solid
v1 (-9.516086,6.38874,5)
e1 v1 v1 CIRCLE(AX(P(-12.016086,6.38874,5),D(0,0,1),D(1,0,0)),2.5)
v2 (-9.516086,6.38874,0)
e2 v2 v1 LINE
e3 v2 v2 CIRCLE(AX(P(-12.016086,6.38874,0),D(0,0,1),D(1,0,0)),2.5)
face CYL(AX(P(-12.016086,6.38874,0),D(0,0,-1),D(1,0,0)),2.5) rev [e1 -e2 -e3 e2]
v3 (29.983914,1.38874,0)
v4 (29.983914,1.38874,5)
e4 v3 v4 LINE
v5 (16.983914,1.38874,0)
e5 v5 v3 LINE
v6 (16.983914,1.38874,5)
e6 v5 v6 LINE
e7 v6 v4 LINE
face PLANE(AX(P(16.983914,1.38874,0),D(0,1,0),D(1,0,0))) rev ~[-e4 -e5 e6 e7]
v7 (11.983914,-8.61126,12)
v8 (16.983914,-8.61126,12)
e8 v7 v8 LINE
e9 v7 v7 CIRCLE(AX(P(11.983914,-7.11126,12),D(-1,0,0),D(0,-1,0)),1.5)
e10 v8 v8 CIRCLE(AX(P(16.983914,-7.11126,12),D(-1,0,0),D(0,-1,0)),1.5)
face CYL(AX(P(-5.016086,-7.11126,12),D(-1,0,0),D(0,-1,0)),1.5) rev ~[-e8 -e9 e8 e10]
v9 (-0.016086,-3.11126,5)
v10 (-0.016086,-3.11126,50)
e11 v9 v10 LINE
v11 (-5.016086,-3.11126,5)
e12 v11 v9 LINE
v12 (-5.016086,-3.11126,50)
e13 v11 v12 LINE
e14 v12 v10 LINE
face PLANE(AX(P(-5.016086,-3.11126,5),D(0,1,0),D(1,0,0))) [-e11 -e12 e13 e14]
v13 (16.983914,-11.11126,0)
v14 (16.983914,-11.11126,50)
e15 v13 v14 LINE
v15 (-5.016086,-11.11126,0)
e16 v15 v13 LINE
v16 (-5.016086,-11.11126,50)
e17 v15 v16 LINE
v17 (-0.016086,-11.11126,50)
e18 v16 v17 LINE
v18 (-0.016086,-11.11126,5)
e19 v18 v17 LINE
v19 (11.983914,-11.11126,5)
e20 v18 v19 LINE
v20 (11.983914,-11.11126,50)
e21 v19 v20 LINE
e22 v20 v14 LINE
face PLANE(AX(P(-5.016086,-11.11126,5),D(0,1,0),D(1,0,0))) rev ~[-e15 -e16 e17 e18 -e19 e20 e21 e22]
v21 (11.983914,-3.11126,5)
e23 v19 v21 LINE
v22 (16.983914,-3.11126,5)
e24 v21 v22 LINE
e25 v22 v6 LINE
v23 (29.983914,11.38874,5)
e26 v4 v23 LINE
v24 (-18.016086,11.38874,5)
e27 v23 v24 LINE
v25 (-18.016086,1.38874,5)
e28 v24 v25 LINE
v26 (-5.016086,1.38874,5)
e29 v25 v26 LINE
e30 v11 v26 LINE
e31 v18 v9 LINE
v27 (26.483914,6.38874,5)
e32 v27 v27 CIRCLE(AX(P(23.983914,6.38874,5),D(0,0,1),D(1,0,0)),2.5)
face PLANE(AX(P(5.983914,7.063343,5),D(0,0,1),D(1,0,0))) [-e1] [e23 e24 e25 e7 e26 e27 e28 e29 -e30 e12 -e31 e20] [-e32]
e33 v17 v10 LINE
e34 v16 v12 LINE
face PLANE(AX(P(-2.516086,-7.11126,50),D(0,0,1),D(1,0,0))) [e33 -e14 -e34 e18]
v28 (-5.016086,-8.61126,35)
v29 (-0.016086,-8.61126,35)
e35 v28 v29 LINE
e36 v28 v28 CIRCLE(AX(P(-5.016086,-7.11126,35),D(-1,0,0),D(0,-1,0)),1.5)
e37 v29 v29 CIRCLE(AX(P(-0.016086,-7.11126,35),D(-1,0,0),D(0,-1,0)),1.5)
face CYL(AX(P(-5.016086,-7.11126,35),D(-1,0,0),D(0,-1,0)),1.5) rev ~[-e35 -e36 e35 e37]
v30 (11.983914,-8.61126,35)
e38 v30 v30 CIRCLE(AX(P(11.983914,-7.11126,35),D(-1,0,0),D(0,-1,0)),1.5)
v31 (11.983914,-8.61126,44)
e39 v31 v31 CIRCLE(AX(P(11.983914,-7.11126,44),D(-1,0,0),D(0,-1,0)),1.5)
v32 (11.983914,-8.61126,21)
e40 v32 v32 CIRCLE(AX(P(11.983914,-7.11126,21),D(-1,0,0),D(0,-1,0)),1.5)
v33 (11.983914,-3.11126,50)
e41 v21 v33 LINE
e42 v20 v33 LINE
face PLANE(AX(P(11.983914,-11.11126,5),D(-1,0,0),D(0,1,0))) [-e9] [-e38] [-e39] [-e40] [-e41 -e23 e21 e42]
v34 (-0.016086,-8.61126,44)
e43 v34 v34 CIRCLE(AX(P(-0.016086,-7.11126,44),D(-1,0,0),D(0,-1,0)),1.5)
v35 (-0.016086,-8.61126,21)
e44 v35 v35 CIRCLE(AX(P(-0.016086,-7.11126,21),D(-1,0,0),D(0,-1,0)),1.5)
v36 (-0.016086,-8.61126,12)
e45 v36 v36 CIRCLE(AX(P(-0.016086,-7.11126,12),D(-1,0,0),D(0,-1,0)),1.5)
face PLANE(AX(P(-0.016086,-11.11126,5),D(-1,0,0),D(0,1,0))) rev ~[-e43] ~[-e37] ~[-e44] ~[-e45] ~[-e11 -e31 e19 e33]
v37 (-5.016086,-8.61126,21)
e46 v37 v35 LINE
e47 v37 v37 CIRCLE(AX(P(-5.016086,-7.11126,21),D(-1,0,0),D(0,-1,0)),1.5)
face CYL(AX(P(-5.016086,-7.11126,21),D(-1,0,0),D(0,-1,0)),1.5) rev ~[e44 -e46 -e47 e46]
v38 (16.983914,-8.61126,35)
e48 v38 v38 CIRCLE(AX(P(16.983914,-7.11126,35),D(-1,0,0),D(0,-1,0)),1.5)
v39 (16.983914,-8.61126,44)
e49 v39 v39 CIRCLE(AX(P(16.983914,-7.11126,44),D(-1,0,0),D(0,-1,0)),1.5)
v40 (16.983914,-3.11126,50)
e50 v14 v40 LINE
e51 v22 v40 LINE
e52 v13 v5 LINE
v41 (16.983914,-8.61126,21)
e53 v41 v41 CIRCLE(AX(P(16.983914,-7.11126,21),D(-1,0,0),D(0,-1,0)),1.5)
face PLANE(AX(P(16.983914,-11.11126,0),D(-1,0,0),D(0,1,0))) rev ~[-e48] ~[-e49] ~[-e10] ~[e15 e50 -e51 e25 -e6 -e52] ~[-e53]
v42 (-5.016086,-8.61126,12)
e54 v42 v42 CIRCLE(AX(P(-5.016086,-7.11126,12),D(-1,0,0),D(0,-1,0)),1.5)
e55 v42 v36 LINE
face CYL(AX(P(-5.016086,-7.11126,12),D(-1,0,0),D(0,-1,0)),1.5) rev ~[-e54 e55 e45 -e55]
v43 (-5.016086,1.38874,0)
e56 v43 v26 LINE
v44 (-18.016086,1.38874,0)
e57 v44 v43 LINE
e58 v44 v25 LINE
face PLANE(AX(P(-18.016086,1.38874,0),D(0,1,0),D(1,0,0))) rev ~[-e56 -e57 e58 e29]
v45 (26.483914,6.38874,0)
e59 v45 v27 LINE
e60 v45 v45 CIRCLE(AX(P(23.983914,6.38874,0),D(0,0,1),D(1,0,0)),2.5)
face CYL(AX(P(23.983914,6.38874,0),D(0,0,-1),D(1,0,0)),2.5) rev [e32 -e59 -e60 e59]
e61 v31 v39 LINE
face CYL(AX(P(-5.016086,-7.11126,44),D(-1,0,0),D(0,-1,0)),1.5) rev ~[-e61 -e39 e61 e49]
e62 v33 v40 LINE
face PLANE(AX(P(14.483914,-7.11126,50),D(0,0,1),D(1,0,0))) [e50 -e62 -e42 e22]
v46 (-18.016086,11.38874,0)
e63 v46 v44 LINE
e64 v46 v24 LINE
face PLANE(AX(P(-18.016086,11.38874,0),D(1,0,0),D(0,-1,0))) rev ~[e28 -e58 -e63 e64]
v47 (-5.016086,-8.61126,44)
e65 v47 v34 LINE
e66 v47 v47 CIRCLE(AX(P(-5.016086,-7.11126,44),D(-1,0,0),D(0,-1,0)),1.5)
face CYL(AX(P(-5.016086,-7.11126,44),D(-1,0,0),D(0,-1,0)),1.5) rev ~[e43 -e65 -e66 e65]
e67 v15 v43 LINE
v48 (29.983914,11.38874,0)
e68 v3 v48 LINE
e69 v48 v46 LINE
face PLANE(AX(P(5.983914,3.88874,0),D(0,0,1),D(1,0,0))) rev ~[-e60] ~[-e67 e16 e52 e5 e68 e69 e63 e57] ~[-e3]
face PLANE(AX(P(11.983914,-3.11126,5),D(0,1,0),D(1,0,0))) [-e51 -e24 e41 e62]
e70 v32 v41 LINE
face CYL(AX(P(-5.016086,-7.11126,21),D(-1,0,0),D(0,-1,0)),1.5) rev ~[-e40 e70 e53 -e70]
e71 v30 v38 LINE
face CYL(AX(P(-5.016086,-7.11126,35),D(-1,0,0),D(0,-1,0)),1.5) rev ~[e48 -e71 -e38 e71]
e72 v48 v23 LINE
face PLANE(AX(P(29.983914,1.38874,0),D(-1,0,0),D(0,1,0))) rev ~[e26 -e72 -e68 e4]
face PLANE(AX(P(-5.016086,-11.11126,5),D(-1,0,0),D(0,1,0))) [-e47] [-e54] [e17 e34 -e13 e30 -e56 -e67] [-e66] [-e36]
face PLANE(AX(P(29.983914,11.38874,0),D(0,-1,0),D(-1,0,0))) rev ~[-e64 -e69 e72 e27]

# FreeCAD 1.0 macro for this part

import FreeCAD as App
import Part
import Sketcher
from FreeCAD import Vector

doc = App.newDocument("Part")
body = doc.addObject("PartDesign::Body", "Body")

# Sketch on XY plane
sketch1 = body.newObject("Sketcher::SketchObject", "Sketch")
sketch1.AttachmentSupport = (doc.getObject("XY_Plane"), [""])
sketch1.MapMode = "FlatFace"
sketch1.addGeometry([
    Part.LineSegment(Vector(30, 11.4, 0), Vector(-18, 11.4, 0)),  # 0
    Part.LineSegment(Vector(-18, 11.4, 0), Vector(-18, 1.4, 0)),  # 1
    Part.LineSegment(Vector(-18, 1.4, 0), Vector(-5, 1.4, 0)),  # 2
    Part.LineSegment(Vector(-5, 1.4, 0), Vector(-5, -11.1, 0)),  # 3
    Part.LineSegment(Vector(-5, -11.1, 0), Vector(17, -11.1, 0)),  # 4
    Part.LineSegment(Vector(17, -11.1, 0), Vector(17, 1.4, 0)),  # 5
    Part.LineSegment(Vector(17, 1.4, 0), Vector(30, 1.4, 0)),  # 6
    Part.LineSegment(Vector(30, 1.4, 0), Vector(30, 11.4, 0)),  # 7
    Part.Circle(Vector(-12, 6.4, 0), Vector(0, 0, 1), 2.5),  # 8
    Part.Circle(Vector(24, 6.4, 0), Vector(0, 0, 1), 2.5),  # 9
], False)
sketch1.addConstraint([
    Sketcher.Constraint("Coincident", 0, 2, 1, 1),
    Sketcher.Constraint("Coincident", 1, 2, 2, 1),
    Sketcher.Constraint("Coincident", 2, 2, 3, 1),
    Sketcher.Constraint("Coincident", 3, 2, 4, 1),
    Sketcher.Constraint("Coincident", 4, 2, 5, 1),
    Sketcher.Constraint("Coincident", 5, 2, 6, 1),
    Sketcher.Constraint("Coincident", 6, 2, 7, 1),
    Sketcher.Constraint("Coincident", 7, 2, 0, 1),
    Sketcher.Constraint("Horizontal", 0),
    Sketcher.Constraint("Vertical", 1),
    Sketcher.Constraint("Horizontal", 2),
    Sketcher.Constraint("Vertical", 3),
    Sketcher.Constraint("Horizontal", 4),
    Sketcher.Constraint("Vertical", 5),
    Sketcher.Constraint("Horizontal", 6),
    Sketcher.Constraint("Vertical", 7),
    Sketcher.Constraint("Equal", 8, 9),
    Sketcher.Constraint("Horizontal", 8, 3, 9, 3),
    Sketcher.Constraint("Horizontal", 2, 2, 5, 2),
    Sketcher.Constraint("Equal", 2, 6),
    Sketcher.Constraint("Diameter", 8, 5.0),
    Sketcher.Constraint("DistanceX", 0, 2, 0, 1, 48.0),
    Sketcher.Constraint("DistanceX", 2, 1, 2, 2, 13.0),
    Sketcher.Constraint("DistanceY", 1, 2, 1, 1, 10.0),
    Sketcher.Constraint("DistanceY", 3, 2, 3, 1, 12.5),
    Sketcher.Constraint("DistanceX", 8, 3, 9, 3, 36.0),
    Sketcher.Constraint("DistanceX", 0, 2, 8, 3, 6.0),
    Sketcher.Constraint("DistanceY", 8, 3, 0, 2, 5.0),
    Sketcher.Constraint("DistanceY", -1, 1, 8, 3, 6.38874),
    Sketcher.Constraint("DistanceX", 8, 3, -1, 1, 12.016086),
])
pad1 = body.newObject("PartDesign::Pad", "Pad")
pad1.Profile = sketch1
pad1.Length = 5

# Sketch on XY plane
sketch2 = body.newObject("Sketcher::SketchObject", "Sketch001")
sketch2.AttachmentSupport = (doc.getObject("XY_Plane"), [""])
sketch2.MapMode = "FlatFace"
sketch2.AttachmentOffset = App.Placement(Vector(0, 0, 5), App.Rotation())
sketch2.addGeometry([
    Part.LineSegment(Vector(-5, -3, 0), Vector(-5, -11, 0)),  # 0
    Part.LineSegment(Vector(-5, -11, 0), Vector(0, -11, 0)),  # 1
    Part.LineSegment(Vector(0, -11, 0), Vector(0, -3, 0)),  # 2
    Part.LineSegment(Vector(0, -3, 0), Vector(-5, -3, 0)),  # 3
    Part.LineSegment(Vector(12, -3, 0), Vector(12, -11, 0)),  # 4
    Part.LineSegment(Vector(12, -11, 0), Vector(17, -11, 0)),  # 5
    Part.LineSegment(Vector(17, -11, 0), Vector(17, -3, 0)),  # 6
    Part.LineSegment(Vector(17, -3, 0), Vector(12, -3, 0)),  # 7
], False)
sketch2.addConstraint([
    Sketcher.Constraint("Coincident", 0, 2, 1, 1),
    Sketcher.Constraint("Coincident", 1, 2, 2, 1),
    Sketcher.Constraint("Coincident", 2, 2, 3, 1),
    Sketcher.Constraint("Coincident", 3, 2, 0, 1),
    Sketcher.Constraint("Coincident", 4, 2, 5, 1),
    Sketcher.Constraint("Coincident", 5, 2, 6, 1),
    Sketcher.Constraint("Coincident", 6, 2, 7, 1),
    Sketcher.Constraint("Coincident", 7, 2, 4, 1),
    Sketcher.Constraint("Vertical", 0),
    Sketcher.Constraint("Horizontal", 1),
    Sketcher.Constraint("Vertical", 2),
    Sketcher.Constraint("Horizontal", 3),
    Sketcher.Constraint("Vertical", 4),
    Sketcher.Constraint("Horizontal", 5),
    Sketcher.Constraint("Vertical", 6),
    Sketcher.Constraint("Horizontal", 7),
    Sketcher.Constraint("Horizontal", 1, 2, 4, 2),
    Sketcher.Constraint("Horizontal", 3, 2, 6, 2),
    Sketcher.Constraint("Equal", 3, 5),
    Sketcher.Constraint("DistanceX", 1, 1, 1, 2, 5.0),
    Sketcher.Constraint("DistanceY", 0, 2, 0, 1, 8.0),
    Sketcher.Constraint("DistanceX", 1, 2, 4, 2, 12.0),
    Sketcher.Constraint("DistanceY", 0, 2, -1, 1, 11.11126),
    Sketcher.Constraint("DistanceX", 0, 2, -1, 1, 5.016086),
])
pad2 = body.newObject("PartDesign::Pad", "Pad001")
pad2.Profile = sketch2
pad2.Length = 45

# Sketch on YZ plane
sketch3 = body.newObject("Sketcher::SketchObject", "Sketch002")
sketch3.AttachmentSupport = (doc.getObject("YZ_Plane"), [""])
sketch3.MapMode = "FlatFace"
sketch3.AttachmentOffset = App.Placement(Vector(0, 0, -5.016086), App.Rotation())
sketch3.addGeometry([
    Part.Circle(Vector(-7.1, 21, 0), Vector(0, 0, 1), 1.5),
    Part.Circle(Vector(-7.1, 35, 0), Vector(0, 0, 1), 1.5),
], False)
sketch3.addConstraint([
    Sketcher.Constraint("Equal", 0, 1),
    Sketcher.Constraint("Vertical", 0, 3, 1, 3),
    Sketcher.Constraint("Diameter", 0, 3.0),
    Sketcher.Constraint("DistanceY", -1, 1, 0, 3, 21.0),
    Sketcher.Constraint("DistanceY", -1, 1, 1, 3, 35.0),
    Sketcher.Constraint("DistanceX", 0, 3, -1, 1, 7.11126),
])
pocket1 = body.newObject("PartDesign::Pocket", "Pocket")
pocket1.Profile = sketch3
pocket1.Length = 45
pocket1.Reversed = True

# Sketch on YZ plane
sketch4 = body.newObject("Sketcher::SketchObject", "Sketch003")
sketch4.AttachmentSupport = (doc.getObject("YZ_Plane"), [""])
sketch4.MapMode = "FlatFace"
sketch4.AttachmentOffset = App.Placement(Vector(0, 0, -5.016086), App.Rotation())
sketch4.addGeometry([
    Part.Circle(Vector(-7.1, 44, 0), Vector(0, 0, 1), 1.5),
    Part.Circle(Vector(-7.1, 12, 0), Vector(0, 0, 1), 1.5),
], False)
sketch4.addConstraint([
    Sketcher.Constraint("Equal", 0, 1),
    Sketcher.Constraint("Vertical", 0, 3, 1, 3),
    Sketcher.Constraint("Diameter", 0, 3.0),
    Sketcher.Constraint("DistanceY", -1, 1, 0, 3, 44.0),
    Sketcher.Constraint("DistanceY", -1, 1, 1, 3, 12.0),
    Sketcher.Constraint("DistanceX", 0, 3, -1, 1, 7.11126),
])
pocket2 = body.newObject("PartDesign::Pocket", "Pocket001")
pocket2.Profile = sketch4
pocket2.Length = 45
pocket2.Reversed = True

doc.recompute()
